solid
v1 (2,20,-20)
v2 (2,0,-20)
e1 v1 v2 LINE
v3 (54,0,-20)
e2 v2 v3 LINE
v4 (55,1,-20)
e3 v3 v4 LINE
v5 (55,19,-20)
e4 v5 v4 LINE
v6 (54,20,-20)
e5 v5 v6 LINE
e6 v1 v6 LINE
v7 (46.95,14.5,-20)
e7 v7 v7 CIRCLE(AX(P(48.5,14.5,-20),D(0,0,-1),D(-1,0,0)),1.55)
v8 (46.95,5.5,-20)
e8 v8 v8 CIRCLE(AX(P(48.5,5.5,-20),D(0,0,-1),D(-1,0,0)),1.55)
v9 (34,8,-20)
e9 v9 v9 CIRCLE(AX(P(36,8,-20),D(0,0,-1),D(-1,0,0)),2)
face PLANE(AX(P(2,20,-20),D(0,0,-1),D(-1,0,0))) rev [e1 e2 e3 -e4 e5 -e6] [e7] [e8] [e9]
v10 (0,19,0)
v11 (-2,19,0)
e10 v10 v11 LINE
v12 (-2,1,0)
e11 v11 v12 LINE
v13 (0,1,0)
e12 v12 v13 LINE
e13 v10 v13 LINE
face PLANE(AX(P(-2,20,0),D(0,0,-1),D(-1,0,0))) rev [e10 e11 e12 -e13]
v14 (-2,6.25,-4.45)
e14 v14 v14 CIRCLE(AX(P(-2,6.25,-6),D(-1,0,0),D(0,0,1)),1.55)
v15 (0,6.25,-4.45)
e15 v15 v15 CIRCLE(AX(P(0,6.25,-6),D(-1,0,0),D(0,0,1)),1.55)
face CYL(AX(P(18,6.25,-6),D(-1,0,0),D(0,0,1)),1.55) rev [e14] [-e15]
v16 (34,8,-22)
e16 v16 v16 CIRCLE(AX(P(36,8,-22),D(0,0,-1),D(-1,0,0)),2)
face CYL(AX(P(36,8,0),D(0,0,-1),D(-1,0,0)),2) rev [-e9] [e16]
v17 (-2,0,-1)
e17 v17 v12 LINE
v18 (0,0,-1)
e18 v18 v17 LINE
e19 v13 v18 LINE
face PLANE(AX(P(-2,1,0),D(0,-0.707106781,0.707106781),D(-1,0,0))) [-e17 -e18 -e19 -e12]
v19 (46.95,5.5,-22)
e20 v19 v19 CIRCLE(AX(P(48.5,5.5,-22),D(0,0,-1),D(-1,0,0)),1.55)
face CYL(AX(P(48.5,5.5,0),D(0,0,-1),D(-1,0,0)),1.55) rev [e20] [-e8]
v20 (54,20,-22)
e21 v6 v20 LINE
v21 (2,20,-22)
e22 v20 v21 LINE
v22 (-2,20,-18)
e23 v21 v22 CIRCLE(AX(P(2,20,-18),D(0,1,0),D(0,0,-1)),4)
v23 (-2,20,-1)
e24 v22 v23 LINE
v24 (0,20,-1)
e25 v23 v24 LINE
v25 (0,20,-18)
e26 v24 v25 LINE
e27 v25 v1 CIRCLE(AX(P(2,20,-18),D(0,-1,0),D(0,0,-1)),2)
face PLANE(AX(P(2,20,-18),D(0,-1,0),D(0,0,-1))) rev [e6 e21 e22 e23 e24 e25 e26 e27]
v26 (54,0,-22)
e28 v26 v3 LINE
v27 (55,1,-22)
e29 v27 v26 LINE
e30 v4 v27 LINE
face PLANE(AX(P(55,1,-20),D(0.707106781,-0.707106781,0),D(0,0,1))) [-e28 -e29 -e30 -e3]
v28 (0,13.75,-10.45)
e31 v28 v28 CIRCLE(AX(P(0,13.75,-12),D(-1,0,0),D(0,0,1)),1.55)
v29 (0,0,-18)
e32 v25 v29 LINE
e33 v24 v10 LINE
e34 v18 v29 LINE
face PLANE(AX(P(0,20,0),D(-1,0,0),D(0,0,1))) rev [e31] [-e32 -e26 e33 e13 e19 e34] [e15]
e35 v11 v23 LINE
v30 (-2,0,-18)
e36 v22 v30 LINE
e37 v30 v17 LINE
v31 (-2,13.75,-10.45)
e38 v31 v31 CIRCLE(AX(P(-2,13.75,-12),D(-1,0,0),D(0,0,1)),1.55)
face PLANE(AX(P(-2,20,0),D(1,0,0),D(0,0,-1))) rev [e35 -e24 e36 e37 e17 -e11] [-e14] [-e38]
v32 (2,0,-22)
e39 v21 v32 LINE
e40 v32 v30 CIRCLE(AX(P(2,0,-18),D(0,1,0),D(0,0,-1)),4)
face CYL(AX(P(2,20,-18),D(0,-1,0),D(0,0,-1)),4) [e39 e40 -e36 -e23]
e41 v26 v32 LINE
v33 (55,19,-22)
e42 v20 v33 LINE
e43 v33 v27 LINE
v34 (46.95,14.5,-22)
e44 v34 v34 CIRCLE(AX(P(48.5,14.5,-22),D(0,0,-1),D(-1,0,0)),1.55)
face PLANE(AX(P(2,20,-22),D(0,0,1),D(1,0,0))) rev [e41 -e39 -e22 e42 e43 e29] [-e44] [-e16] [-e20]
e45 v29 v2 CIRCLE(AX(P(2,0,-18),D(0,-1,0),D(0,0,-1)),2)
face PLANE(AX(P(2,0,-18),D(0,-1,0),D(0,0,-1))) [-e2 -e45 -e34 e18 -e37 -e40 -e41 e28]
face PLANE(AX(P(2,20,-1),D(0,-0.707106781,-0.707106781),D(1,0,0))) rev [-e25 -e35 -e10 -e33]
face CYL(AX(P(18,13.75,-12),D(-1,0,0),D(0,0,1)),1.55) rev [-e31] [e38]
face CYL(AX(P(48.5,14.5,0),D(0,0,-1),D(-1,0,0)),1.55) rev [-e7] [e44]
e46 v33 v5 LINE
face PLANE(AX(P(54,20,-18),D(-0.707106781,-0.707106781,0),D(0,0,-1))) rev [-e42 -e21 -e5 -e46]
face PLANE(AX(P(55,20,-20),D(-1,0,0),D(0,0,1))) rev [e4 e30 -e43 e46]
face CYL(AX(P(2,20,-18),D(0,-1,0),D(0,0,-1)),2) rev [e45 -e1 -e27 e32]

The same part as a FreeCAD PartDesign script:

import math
import FreeCAD as App
import Part
import Sketcher
Q = App.Units.Quantity


def edges_at(feature, points):
    """Names of the edges that pass closest to the given points."""
    edges = feature.Shape.Edges
    near = lambda p: min(range(len(edges)), key=lambda i: edges[i].distToShape(Part.Vertex(*p))[0])
    return sorted({f"Edge{near(p) + 1}" for p in points})

doc = App.newDocument("Part")
params = doc.addObject("Spreadsheet::Sheet", "Params")
for row, (alias, value) in enumerate([
    ("sketch1_radius", "2 mm"),
    ("sketch1_radius2", "4 mm"),
    ("sketch1_width", "53 mm"),
    ("sketch1_height", "18 mm"),
    ("pad1_length", "20 mm"),
    ("sketch2_diameter", "3.1 mm"),
    ("pocket1_length", "20 mm"),
    ("sketch3_diameter", "3.1 mm"),
    ("chamfer_size", "1 mm"),
    ("sketch4_diameter", "4 mm"),
], start=1):
    params.set(f"A{row}", alias)
    params.set(f"B{row}", "=" + value)
    params.setAlias(f"B{row}", alias)

body = doc.addObject("PartDesign::Body", "Body")

# Sketch on XZ plane
sketch1 = body.newObject("Sketcher::SketchObject", "Sketch")
sketch1.AttachmentSupport = (doc.getObject("XZ_Plane"), [""])
sketch1.MapMode = "FlatFace"
sketch1.addGeometry(Part.LineSegment(App.Vector(0, 0, 0), App.Vector(0, -18, 0)), False)
sketch1.addGeometry(Part.ArcOfCircle(Part.Circle(App.Vector(2, -18, 0), App.Vector(0, 0, 1), 2), math.radians(-180), math.radians(-90)), False)
sketch1.addGeometry(Part.LineSegment(App.Vector(2, -20, 0), App.Vector(55, -20, 0)), False)
sketch1.addGeometry(Part.LineSegment(App.Vector(55, -20, 0), App.Vector(55, -22, 0)), False)
sketch1.addGeometry(Part.LineSegment(App.Vector(55, -22, 0), App.Vector(2, -22, 0)), False)
sketch1.addGeometry(Part.ArcOfCircle(Part.Circle(App.Vector(2, -18, 0), App.Vector(0, 0, 1), 4), math.radians(180), math.radians(270)), False)
sketch1.addGeometry(Part.LineSegment(App.Vector(-2, -18, 0), App.Vector(-2, 0, 0)), False)
sketch1.addGeometry(Part.LineSegment(App.Vector(-2, 0, 0), App.Vector(0, 0, 0)), False)
sketch1.addConstraint(Sketcher.Constraint("Tangent", 0, 2, 1, 1))
sketch1.addConstraint(Sketcher.Constraint("Tangent", 1, 2, 2, 1))
sketch1.addConstraint(Sketcher.Constraint("Coincident", 2, 2, 3, 1))
sketch1.addConstraint(Sketcher.Constraint("Coincident", 3, 2, 4, 1))
sketch1.addConstraint(Sketcher.Constraint("Tangent", 4, 2, 5, 2))
sketch1.addConstraint(Sketcher.Constraint("Tangent", 5, 1, 6, 1))
sketch1.addConstraint(Sketcher.Constraint("Coincident", 6, 2, 7, 1))
sketch1.addConstraint(Sketcher.Constraint("Coincident", 7, 2, 0, 1))
sketch1.addConstraint(Sketcher.Constraint("Vertical", 0))
sketch1.addConstraint(Sketcher.Constraint("Horizontal", 2))
sketch1.addConstraint(Sketcher.Constraint("Vertical", 3))
sketch1.addConstraint(Sketcher.Constraint("Horizontal", 4))
sketch1.addConstraint(Sketcher.Constraint("Vertical", 6))
sketch1.addConstraint(Sketcher.Constraint("Horizontal", 7))
sketch1.addConstraint(Sketcher.Constraint("Coincident", 7, 2, -1, 1))
sketch1.addConstraint(Sketcher.Constraint("Coincident", 5, 3, 1, 3))
sketch1.addConstraint(Sketcher.Constraint("Radius", 1, Q("2 mm")))
sketch1.addConstraint(Sketcher.Constraint("Radius", 5, Q("4 mm")))
sketch1.addConstraint(Sketcher.Constraint("DistanceX", 2, 1, 2, 2, Q("53 mm")))
sketch1.addConstraint(Sketcher.Constraint("DistanceY", 0, 2, 0, 1, Q("18 mm")))
sketch1.setExpression("Constraints[16]", "Params.sketch1_radius")
sketch1.setExpression("Constraints[17]", "Params.sketch1_radius2")
sketch1.setExpression("Constraints[18]", "Params.sketch1_width")
sketch1.setExpression("Constraints[19]", "Params.sketch1_height")
pad1 = body.newObject("PartDesign::Pad", "Pad")
pad1.Profile = sketch1
pad1.setExpression("Length", "Params.pad1_length")
pad1.Reversed = True

# Sketch on YZ plane
sketch2 = body.newObject("Sketcher::SketchObject", "Sketch001")
sketch2.AttachmentSupport = (doc.getObject("YZ_Plane"), [""])
sketch2.MapMode = "FlatFace"
sketch2.AttachmentOffset = App.Placement(App.Vector(0, 0, -2), App.Rotation())
sketch2.addGeometry(Part.Circle(App.Vector(13.8, -12, 0), App.Vector(0, 0, 1), 1.6), False)
sketch2.addGeometry(Part.Circle(App.Vector(6.2, -6, 0), App.Vector(0, 0, 1), 1.6), False)
sketch2.addConstraint(Sketcher.Constraint("Equal", 0, 1))
sketch2.addConstraint(Sketcher.Constraint("Diameter", 0, Q("3.1 mm")))
sketch2.addConstraint(Sketcher.Constraint("DistanceY", 0, 3, -1, 1, Q("12 mm")))
sketch2.addConstraint(Sketcher.Constraint("DistanceY", 1, 3, -1, 1, Q("6 mm")))
sketch2.addConstraint(Sketcher.Constraint("DistanceX", 1, 3, 0, 3, Q("7.5 mm")))
sketch2.addConstraint(Sketcher.Constraint("DistanceX", -1, 1, 0, 3, Q("13.75 mm")))
sketch2.setExpression("Constraints[1]", "Params.sketch2_diameter")
pocket1 = body.newObject("PartDesign::Pocket", "Pocket")
pocket1.Profile = sketch2
pocket1.setExpression("Length", "Params.pocket1_length")
pocket1.Reversed = True

# Sketch on XY plane
sketch3 = body.newObject("Sketcher::SketchObject", "Sketch002")
sketch3.AttachmentSupport = (doc.getObject("XY_Plane"), [""])
sketch3.MapMode = "FlatFace"
sketch3.AttachmentOffset = App.Placement(App.Vector(0, 0, -22), App.Rotation())
sketch3.addGeometry(Part.Circle(App.Vector(48.5, 14.5, 0), App.Vector(0, 0, 1), 1.6), False)
sketch3.addGeometry(Part.Circle(App.Vector(48.5, 5.5, 0), App.Vector(0, 0, 1), 1.6), False)
sketch3.addConstraint(Sketcher.Constraint("Equal", 0, 1))
sketch3.addConstraint(Sketcher.Constraint("Vertical", 0, 3, 1, 3))
sketch3.addConstraint(Sketcher.Constraint("Diameter", 0, Q("3.1 mm")))
sketch3.addConstraint(Sketcher.Constraint("DistanceY", 1, 3, 0, 3, Q("9 mm")))
sketch3.addConstraint(Sketcher.Constraint("DistanceX", -1, 1, 0, 3, Q("48.5 mm")))
sketch3.addConstraint(Sketcher.Constraint("DistanceY", -1, 1, 0, 3, Q("14.5 mm")))
sketch3.setExpression("Constraints[2]", "Params.sketch3_diameter")
pocket2 = body.newObject("PartDesign::Pocket", "Pocket001")
pocket2.Profile = sketch3
pocket2.Type = "ThroughAll"
pocket2.Reversed = True
doc.recompute()

chamfer = body.newObject("PartDesign::Chamfer", "Chamfer")
chamfer.Base = (pocket2, edges_at(pocket2, [
    (-1, 0, 0),
    (55, 0, -21),
    (-1, 20, 0),
    (55, 20, -21),
]))
chamfer.setExpression("Size", "Params.chamfer_size")

# Sketch on XY plane
sketch4 = body.newObject("Sketcher::SketchObject", "Sketch003")
sketch4.AttachmentSupport = (doc.getObject("XY_Plane"), [""])
sketch4.MapMode = "FlatFace"
sketch4.AttachmentOffset = App.Placement(App.Vector(0, 0, -22), App.Rotation())
sketch4.addGeometry(Part.Circle(App.Vector(36, 8, 0), App.Vector(0, 0, 1), 2), False)
sketch4.addConstraint(Sketcher.Constraint("Diameter", 0, Q("4 mm")))
sketch4.addConstraint(Sketcher.Constraint("DistanceX", -1, 1, 0, 3, Q("36 mm")))
sketch4.addConstraint(Sketcher.Constraint("DistanceY", -1, 1, 0, 3, Q("8 mm")))
sketch4.setExpression("Constraints[0]", "Params.sketch4_diameter")
pocket3 = body.newObject("PartDesign::Pocket", "Pocket002")
pocket3.Profile = sketch4
pocket3.Type = "ThroughAll"
pocket3.Reversed = True

doc.recompute()
